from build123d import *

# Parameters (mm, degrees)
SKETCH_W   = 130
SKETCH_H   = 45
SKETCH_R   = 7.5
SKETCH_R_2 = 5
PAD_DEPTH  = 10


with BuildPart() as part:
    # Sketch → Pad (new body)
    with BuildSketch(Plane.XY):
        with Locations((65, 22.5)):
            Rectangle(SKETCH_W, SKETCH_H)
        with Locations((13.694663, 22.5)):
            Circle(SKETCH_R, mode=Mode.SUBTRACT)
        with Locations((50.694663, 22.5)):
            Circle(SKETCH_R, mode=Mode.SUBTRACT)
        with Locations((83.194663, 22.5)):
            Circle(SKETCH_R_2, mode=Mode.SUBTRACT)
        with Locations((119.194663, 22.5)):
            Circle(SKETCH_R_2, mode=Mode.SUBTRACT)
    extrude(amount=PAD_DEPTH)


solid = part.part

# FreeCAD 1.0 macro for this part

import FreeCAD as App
import Part
import Sketcher

V = App.Vector

doc = App.newDocument("Part")
body = doc.addObject("PartDesign::Body", "Body")

sketch1 = body.newObject("Sketcher::SketchObject", "Sketch")
sketch1.AttachmentSupport = (doc.getObject("XY_Plane"), [""])
sketch1.MapMode = "FlatFace"
sketch1.addGeometry([
    Part.LineSegment(V(0, 45, 0), V(0, 0, 0)),
    Part.LineSegment(V(0, 0, 0), V(130, 0, 0)),
    Part.LineSegment(V(130, 0, 0), V(130, 45, 0)),
    Part.LineSegment(V(130, 45, 0), V(0, 45, 0)),
    Part.Circle(V(13.694663, 22.5, 0), V(0, 0, 1), 7.5),
    Part.Circle(V(50.694663, 22.5, 0), V(0, 0, 1), 7.5),
    Part.Circle(V(83.194663, 22.5, 0), V(0, 0, 1), 5),
    Part.Circle(V(119.194663, 22.5, 0), V(0, 0, 1), 5),
], False)
sketch1.addConstraint([
    Sketcher.Constraint("Coincident", 0, 2, 1, 1),
    Sketcher.Constraint("Coincident", 1, 2, 2, 1),
    Sketcher.Constraint("Coincident", 2, 2, 3, 1),
    Sketcher.Constraint("Coincident", 3, 2, 0, 1),
    Sketcher.Constraint("Vertical", 0),
    Sketcher.Constraint("Horizontal", 1),
    Sketcher.Constraint("Vertical", 2),
    Sketcher.Constraint("Horizontal", 3),
    Sketcher.Constraint("Coincident", 0, 2, -1, 1),
    Sketcher.Constraint("Equal", 4, 5),
    Sketcher.Constraint("Equal", 6, 7),
    Sketcher.Constraint("Horizontal", 4, 3, 5, 3),
    Sketcher.Constraint("Horizontal", 5, 3, 6, 3),
    Sketcher.Constraint("Horizontal", 6, 3, 7, 3),
    Sketcher.Constraint("Diameter", 4, 15.0),
    Sketcher.Constraint("Diameter", 6, 10.0),
    Sketcher.Constraint("DistanceX", 1, 1, 1, 2, 130.0),
    Sketcher.Constraint("DistanceY", 0, 2, 0, 1, 45.0),
    Sketcher.Constraint("DistanceX", 4, 3, 5, 3, 37.0),
    Sketcher.Constraint("DistanceX", 6, 3, 7, 3, 36.0),
    Sketcher.Constraint("DistanceY", -1, 1, 4, 3, 22.5),
    Sketcher.Constraint("DistanceX", 5, 3, 6, 3, 32.5),
    Sketcher.Constraint("DistanceX", -1, 1, 4, 3, 13.694663),
])
pad1 = body.newObject("PartDesign::Pad", "Pad")
pad1.Profile = sketch1
pad1.Length = 10

doc.recompute()
